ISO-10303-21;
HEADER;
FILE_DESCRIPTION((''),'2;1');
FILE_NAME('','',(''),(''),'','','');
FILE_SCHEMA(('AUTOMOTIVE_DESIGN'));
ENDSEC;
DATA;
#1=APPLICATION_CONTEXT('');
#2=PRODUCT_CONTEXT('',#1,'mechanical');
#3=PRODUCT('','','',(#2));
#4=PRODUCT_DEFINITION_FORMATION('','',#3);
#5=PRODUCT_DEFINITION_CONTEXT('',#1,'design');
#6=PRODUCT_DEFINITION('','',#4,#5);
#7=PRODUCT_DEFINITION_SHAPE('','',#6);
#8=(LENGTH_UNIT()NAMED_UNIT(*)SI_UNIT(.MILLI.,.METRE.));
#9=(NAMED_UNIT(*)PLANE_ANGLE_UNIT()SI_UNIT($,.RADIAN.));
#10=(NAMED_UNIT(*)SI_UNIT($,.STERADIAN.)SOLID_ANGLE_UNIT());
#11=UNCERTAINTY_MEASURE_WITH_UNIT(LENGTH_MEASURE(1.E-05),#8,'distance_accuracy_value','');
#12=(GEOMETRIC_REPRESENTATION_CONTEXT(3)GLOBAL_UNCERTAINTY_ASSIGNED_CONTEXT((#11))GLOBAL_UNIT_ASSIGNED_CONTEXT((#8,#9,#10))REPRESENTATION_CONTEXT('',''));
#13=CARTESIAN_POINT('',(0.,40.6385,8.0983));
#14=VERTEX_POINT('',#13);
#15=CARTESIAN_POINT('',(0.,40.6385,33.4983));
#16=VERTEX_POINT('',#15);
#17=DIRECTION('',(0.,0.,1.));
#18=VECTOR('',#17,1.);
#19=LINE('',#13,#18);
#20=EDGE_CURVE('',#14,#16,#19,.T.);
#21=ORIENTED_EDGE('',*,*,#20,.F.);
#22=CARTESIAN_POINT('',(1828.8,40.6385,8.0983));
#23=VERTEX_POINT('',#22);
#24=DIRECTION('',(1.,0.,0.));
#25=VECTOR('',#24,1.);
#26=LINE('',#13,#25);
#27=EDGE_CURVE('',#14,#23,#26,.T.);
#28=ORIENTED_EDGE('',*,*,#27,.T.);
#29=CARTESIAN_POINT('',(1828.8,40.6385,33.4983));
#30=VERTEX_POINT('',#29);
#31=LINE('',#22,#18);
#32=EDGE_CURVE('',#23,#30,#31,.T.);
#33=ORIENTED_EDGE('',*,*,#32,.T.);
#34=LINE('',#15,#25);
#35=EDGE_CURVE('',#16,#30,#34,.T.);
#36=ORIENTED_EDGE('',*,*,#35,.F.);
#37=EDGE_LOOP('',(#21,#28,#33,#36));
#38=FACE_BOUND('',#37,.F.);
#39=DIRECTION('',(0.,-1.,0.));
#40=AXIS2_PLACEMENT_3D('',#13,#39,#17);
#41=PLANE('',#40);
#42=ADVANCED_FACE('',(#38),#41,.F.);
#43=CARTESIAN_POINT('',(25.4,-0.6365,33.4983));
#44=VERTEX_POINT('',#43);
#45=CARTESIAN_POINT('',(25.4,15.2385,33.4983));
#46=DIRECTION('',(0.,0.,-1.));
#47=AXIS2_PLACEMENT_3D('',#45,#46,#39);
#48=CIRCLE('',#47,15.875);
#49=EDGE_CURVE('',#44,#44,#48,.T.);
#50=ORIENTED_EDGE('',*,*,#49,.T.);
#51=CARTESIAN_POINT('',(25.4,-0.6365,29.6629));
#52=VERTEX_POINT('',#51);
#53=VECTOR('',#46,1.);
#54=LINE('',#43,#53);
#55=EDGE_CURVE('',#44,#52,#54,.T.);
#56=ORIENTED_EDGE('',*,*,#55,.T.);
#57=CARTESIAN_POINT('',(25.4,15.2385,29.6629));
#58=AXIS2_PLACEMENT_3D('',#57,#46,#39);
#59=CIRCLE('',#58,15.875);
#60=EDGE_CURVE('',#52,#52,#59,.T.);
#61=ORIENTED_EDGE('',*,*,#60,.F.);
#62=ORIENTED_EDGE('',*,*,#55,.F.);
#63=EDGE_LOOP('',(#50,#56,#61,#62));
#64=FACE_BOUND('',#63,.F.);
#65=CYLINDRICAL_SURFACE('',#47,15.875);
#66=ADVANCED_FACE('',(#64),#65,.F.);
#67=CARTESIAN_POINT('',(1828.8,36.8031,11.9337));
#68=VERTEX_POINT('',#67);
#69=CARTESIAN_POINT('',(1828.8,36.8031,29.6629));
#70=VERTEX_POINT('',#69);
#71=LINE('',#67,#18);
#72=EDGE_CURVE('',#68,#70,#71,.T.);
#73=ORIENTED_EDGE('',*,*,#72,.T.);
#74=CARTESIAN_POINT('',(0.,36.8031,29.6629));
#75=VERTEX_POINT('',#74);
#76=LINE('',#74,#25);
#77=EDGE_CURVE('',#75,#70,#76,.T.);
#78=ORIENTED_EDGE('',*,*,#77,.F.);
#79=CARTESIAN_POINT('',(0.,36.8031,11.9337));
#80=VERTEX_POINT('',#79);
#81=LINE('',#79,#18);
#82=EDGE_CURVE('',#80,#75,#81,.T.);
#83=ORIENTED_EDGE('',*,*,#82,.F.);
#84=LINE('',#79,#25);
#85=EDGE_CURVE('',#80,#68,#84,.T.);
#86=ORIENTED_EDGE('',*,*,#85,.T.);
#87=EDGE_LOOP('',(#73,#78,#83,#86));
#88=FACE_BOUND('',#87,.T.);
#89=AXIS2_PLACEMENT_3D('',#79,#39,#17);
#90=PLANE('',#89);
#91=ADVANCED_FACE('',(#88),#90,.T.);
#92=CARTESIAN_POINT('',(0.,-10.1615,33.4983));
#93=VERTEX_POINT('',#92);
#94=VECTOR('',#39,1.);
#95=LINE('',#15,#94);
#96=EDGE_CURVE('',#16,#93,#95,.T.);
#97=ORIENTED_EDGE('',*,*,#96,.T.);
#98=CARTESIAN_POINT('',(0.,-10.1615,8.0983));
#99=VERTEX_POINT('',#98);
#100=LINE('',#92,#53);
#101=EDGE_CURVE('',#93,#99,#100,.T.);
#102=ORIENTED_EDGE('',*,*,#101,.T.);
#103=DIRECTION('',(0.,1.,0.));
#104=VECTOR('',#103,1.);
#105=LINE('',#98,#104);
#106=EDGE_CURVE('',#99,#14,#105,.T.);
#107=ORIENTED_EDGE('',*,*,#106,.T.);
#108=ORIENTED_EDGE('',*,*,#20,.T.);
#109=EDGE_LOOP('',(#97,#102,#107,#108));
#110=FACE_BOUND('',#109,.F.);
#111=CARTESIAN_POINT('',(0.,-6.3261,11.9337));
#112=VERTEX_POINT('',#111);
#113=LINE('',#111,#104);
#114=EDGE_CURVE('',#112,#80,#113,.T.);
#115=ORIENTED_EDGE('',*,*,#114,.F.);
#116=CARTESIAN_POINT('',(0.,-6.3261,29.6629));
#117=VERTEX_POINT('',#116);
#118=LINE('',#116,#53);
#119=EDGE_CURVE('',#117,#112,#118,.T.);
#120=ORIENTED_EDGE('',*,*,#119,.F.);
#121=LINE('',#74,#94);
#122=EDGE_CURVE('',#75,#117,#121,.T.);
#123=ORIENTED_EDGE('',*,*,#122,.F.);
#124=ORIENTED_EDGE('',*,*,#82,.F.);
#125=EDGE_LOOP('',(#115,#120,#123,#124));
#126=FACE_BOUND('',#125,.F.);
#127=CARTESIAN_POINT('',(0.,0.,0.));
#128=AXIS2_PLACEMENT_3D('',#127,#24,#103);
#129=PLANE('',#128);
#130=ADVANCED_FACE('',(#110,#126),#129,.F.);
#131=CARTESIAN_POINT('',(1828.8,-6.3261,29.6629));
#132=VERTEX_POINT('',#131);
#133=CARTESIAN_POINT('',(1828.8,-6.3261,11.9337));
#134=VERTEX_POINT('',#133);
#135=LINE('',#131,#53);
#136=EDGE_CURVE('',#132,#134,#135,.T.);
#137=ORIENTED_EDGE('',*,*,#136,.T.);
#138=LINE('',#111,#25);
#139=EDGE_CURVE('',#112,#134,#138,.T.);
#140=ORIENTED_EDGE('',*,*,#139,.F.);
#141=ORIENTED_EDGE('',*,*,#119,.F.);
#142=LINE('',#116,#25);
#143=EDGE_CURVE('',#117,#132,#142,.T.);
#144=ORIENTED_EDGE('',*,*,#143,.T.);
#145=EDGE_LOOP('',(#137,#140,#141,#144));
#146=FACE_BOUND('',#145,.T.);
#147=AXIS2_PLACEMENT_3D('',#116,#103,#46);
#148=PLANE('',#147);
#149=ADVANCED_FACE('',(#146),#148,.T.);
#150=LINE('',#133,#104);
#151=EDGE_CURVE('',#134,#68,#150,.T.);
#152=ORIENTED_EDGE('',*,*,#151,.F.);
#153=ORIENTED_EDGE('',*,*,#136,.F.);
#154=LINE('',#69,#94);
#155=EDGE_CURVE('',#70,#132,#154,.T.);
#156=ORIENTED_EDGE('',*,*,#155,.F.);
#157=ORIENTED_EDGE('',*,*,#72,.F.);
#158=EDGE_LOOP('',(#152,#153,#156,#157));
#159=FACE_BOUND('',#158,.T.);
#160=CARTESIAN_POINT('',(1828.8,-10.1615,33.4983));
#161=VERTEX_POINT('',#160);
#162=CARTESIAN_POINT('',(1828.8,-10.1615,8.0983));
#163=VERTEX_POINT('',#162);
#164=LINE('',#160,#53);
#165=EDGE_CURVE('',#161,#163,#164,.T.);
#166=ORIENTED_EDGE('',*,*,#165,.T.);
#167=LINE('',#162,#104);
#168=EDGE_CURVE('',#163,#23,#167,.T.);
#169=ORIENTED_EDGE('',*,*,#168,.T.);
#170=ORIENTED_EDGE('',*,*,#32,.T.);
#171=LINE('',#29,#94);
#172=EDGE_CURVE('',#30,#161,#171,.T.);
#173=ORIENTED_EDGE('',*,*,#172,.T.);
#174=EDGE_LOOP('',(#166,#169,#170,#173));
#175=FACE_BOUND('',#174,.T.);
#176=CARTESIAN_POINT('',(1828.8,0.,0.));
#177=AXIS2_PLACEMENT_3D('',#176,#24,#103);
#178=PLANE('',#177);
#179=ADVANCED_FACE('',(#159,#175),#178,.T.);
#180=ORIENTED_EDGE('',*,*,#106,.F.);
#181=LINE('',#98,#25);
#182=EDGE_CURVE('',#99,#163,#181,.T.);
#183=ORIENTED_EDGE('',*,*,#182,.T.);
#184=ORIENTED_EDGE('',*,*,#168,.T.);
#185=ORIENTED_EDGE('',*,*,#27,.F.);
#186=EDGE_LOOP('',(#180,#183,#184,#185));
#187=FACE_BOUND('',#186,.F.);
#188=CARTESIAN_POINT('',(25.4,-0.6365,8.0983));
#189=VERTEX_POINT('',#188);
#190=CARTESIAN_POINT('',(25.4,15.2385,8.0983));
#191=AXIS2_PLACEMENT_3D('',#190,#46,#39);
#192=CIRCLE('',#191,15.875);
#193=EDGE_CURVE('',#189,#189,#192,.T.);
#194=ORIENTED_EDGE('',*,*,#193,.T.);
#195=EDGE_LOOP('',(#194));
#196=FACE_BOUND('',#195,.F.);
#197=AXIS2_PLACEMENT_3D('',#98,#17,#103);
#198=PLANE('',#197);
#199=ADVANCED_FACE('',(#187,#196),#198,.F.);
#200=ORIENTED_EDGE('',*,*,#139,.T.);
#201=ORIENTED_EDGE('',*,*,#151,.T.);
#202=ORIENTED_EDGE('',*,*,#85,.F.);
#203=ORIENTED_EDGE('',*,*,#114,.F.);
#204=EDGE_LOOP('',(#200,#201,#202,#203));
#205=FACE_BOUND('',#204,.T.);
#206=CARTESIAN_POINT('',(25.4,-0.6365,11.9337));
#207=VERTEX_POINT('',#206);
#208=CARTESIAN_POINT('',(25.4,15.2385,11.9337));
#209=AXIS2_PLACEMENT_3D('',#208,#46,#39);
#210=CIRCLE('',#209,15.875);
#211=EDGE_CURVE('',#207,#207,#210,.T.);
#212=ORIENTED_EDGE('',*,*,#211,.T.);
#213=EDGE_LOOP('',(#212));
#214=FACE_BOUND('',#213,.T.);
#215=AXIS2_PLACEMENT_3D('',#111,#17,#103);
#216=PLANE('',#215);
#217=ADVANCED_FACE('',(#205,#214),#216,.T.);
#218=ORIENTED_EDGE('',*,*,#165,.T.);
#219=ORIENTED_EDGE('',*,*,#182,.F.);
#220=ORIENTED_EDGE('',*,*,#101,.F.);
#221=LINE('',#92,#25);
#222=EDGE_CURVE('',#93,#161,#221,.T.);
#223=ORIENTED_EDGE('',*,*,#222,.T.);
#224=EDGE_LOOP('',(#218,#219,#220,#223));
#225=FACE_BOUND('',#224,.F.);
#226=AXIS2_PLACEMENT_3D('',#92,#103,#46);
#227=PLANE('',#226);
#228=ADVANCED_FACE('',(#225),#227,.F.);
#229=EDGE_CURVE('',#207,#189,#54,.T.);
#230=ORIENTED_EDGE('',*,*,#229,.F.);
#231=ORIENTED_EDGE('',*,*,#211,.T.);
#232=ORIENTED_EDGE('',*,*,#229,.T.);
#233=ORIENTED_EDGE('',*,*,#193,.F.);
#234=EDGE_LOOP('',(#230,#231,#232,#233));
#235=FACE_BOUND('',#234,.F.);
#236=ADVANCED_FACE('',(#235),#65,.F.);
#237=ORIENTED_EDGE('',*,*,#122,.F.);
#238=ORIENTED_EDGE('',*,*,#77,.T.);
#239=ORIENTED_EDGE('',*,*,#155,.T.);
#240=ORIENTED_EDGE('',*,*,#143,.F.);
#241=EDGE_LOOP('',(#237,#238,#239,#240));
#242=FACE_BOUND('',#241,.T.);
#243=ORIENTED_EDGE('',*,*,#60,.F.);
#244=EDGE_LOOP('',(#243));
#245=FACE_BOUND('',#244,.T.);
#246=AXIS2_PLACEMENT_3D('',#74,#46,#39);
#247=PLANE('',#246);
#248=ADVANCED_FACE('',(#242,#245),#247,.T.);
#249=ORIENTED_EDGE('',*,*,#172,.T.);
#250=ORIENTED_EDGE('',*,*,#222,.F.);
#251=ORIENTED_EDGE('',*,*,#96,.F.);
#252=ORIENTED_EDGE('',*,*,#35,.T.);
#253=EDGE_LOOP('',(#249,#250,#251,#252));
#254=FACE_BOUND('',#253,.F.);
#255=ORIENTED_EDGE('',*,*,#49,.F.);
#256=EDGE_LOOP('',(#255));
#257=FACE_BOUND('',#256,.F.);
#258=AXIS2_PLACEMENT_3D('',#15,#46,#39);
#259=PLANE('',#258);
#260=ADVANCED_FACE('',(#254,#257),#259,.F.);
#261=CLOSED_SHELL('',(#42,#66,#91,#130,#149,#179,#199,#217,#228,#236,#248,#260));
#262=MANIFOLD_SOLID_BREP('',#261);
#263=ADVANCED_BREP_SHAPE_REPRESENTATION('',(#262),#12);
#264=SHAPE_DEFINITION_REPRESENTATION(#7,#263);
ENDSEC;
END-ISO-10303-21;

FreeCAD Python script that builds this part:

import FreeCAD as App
import Part
import Sketcher

V = App.Vector
Q = App.Units.Quantity


def add_polygon(sketch, points):
    """Adds a closed chain of lines whose ends are joined by coincident constraints."""
    first, n = sketch.GeometryCount, len(points)
    for a, b in zip(points, points[1:] + points[:1]):
        sketch.addGeometry(Part.LineSegment(App.Vector(*a, 0), App.Vector(*b, 0)), False)
    for i in range(n):
        sketch.addConstraint(Sketcher.Constraint("Coincident", first + i, 2, first + (i + 1) % n, 1))

doc = App.newDocument("Part")
body = doc.addObject("PartDesign::Body", "Body")

# Sketch on YZ plane
sketch1 = body.newObject("Sketcher::SketchObject", "Sketch")
sketch1.AttachmentSupport = (doc.getObject("YZ_Plane"), [""])
sketch1.MapMode = "FlatFace"
add_polygon(sketch1, [(41, 8), (41, 33), (-10, 33), (-10, 8)])  # lines 0-3
add_polygon(sketch1, [(-6, 30), (37, 30), (37, 12), (-6, 12)])  # lines 4-7
sketch1.addConstraint([
    Sketcher.Constraint("Vertical", 0),
    Sketcher.Constraint("Horizontal", 1),
    Sketcher.Constraint("Vertical", 2),
    Sketcher.Constraint("Horizontal", 3),
    Sketcher.Constraint("Horizontal", 4),
    Sketcher.Constraint("Vertical", 5),
    Sketcher.Constraint("Horizontal", 6),
    Sketcher.Constraint("Vertical", 7),
    Sketcher.Constraint("DistanceX", 1, 2, 1, 1, Q("2 in")),
    Sketcher.Constraint("DistanceY", 0, 1, 0, 2, Q("1 in")),
    Sketcher.Constraint("DistanceX", 4, 1, 4, 2, Q("1.698 in")),
    Sketcher.Constraint("DistanceY", 5, 2, 5, 1, Q("0.698 in")),
    Sketcher.Constraint("DistanceX", 4, 2, 0, 2, Q("0.151 in")),
    Sketcher.Constraint("DistanceY", 4, 2, 0, 2, Q("0.151 in")),
    Sketcher.Constraint("DistanceX", -1, 1, 0, 2, Q("40.6385 mm")),
    Sketcher.Constraint("DistanceY", -1, 1, 0, 2, Q("33.4983 mm")),
])
pad1 = body.newObject("PartDesign::Pad", "Pad")
pad1.Profile = sketch1
pad1.Length = Q("72 in")

# Sketch on XY plane
sketch2 = body.newObject("Sketcher::SketchObject", "Sketch001")
sketch2.AttachmentSupport = (doc.getObject("XY_Plane"), [""])
sketch2.MapMode = "FlatFace"
sketch2.AttachmentOffset = App.Placement(V(0, 0, 33.4983), App.Rotation())
sketch2.addGeometry(Part.Circle(V(25, 15, 0), V(0, 0, 1), 16), False)
sketch2.addConstraint([
    Sketcher.Constraint("Diameter", 0, Q("1.25 in")),
    Sketcher.Constraint("DistanceX", -1, 1, 0, 3, Q("1 in")),
    Sketcher.Constraint("DistanceY", -1, 1, 0, 3, Q("15.2385 mm")),
])
doc.recompute()
hole = body.newObject("PartDesign::Hole", "Hole")
hole.Profile = sketch2
hole.ThreadType = "None"
hole.Diameter = Q("1.25 in")
hole.DepthType = "ThroughAll"

doc.recompute()
